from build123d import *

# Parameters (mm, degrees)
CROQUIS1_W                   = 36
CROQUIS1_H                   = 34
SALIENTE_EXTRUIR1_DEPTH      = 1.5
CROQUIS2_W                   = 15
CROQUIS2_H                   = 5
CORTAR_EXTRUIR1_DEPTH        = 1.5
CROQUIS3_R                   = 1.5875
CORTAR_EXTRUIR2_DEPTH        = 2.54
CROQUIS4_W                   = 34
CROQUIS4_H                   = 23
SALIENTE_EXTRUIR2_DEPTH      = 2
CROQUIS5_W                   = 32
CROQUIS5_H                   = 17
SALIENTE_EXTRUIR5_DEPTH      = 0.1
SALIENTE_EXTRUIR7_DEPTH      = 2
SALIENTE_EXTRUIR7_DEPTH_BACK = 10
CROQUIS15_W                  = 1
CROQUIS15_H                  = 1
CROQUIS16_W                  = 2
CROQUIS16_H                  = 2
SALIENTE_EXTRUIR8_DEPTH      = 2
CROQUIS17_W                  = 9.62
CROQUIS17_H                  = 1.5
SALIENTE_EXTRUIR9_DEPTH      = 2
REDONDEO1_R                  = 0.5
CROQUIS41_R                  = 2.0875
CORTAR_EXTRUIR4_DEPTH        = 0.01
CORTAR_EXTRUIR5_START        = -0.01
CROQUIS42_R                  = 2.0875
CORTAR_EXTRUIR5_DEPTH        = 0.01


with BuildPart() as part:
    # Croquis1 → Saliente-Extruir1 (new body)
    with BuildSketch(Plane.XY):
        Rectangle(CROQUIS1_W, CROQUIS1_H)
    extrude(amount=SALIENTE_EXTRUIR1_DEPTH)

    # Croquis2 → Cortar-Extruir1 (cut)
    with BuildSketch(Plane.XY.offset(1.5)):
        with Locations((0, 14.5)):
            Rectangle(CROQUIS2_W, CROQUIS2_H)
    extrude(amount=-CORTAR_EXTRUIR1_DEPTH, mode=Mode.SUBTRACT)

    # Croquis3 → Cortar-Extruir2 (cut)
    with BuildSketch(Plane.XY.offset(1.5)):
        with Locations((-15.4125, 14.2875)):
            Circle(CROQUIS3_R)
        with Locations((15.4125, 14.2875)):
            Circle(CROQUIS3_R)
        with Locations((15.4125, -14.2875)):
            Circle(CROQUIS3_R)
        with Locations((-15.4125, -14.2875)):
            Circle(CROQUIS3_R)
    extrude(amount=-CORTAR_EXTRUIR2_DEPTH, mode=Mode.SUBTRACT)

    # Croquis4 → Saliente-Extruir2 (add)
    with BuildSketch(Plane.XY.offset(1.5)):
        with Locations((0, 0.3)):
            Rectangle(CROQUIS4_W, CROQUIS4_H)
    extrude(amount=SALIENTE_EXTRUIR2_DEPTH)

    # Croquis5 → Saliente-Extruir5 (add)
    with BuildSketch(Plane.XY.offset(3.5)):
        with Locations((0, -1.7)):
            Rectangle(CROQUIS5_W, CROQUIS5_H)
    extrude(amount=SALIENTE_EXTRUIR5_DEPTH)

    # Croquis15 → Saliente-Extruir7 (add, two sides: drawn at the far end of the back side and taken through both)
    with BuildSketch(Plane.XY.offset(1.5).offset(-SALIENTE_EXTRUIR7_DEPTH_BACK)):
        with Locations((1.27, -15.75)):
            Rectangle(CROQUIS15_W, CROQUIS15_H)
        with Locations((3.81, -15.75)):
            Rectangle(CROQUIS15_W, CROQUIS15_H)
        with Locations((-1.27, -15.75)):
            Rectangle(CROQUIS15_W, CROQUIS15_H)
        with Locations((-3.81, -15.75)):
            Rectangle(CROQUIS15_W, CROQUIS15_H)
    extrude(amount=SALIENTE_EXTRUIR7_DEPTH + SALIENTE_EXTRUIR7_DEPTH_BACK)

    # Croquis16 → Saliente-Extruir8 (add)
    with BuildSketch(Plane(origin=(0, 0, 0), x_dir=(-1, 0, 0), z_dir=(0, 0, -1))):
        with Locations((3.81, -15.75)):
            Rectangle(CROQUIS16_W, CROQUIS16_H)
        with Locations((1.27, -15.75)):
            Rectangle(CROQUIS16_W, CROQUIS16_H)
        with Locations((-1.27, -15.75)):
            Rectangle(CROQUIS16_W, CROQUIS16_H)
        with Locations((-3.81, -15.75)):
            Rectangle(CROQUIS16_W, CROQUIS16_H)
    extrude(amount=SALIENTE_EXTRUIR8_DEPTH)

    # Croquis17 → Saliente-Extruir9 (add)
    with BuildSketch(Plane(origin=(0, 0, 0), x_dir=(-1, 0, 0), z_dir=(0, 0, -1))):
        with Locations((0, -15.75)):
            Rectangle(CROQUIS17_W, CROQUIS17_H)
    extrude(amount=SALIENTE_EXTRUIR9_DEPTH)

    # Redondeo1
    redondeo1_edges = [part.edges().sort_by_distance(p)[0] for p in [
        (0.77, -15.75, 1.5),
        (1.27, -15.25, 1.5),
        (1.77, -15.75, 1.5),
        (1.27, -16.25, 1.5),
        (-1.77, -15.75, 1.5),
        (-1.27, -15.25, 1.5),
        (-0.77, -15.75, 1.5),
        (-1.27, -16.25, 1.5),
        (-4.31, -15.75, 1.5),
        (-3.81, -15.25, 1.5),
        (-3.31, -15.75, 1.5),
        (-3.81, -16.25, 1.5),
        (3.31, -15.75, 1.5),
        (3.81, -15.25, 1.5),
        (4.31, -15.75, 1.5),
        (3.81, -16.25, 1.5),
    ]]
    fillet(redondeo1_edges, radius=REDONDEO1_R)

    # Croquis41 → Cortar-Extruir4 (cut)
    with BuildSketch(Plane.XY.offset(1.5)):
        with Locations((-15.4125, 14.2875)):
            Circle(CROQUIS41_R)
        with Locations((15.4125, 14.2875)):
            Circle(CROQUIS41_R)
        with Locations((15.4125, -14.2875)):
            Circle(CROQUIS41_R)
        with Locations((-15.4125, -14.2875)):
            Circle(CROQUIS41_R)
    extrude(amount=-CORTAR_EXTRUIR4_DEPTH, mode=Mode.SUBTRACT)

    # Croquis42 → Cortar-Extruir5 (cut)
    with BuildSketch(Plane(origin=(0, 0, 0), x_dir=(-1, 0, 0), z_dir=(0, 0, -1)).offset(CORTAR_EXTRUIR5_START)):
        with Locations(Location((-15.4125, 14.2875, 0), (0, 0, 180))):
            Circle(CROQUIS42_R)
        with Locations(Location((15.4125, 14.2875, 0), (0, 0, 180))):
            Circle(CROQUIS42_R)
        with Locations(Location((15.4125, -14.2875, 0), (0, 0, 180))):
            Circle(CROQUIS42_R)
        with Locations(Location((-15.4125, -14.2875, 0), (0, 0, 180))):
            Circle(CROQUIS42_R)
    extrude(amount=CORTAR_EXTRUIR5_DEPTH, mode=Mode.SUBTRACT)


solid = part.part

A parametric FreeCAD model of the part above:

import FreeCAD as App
import Part
import Sketcher

V = App.Vector
Q = App.Units.Quantity


def edges_at(feature, points):
    """Names of the edges that pass closest to the given points."""
    edges = feature.Shape.Edges
    near = lambda p: min(range(len(edges)), key=lambda i: edges[i].distToShape(Part.Vertex(*p))[0])
    return sorted({f"Edge{near(p) + 1}" for p in points})

doc = App.newDocument("Part")
body = doc.addObject("PartDesign::Body", "Body")

# Sketch on XY plane
sketch1 = body.newObject("Sketcher::SketchObject", "Sketch")
sketch1.AttachmentSupport = (doc.getObject("XY_Plane"), [""])
sketch1.MapMode = "FlatFace"
sketch1.addGeometry([
    Part.LineSegment(V(-18, 17, 0), V(-18, -17, 0)),
    Part.LineSegment(V(-18, -17, 0), V(18, -17, 0)),
    Part.LineSegment(V(18, -17, 0), V(18, 17, 0)),
    Part.LineSegment(V(18, 17, 0), V(-18, 17, 0)),
], False)
sketch1.addConstraint([
    Sketcher.Constraint("Coincident", 0, 2, 1, 1),
    Sketcher.Constraint("Coincident", 1, 2, 2, 1),
    Sketcher.Constraint("Coincident", 2, 2, 3, 1),
    Sketcher.Constraint("Coincident", 3, 2, 0, 1),
    Sketcher.Constraint("Vertical", 0),
    Sketcher.Constraint("Horizontal", 1),
    Sketcher.Constraint("Vertical", 2),
    Sketcher.Constraint("Horizontal", 3),
    Sketcher.Constraint("Symmetric", 0, 2, 2, 2, -1, 1),
    Sketcher.Constraint("DistanceX", 1, 1, 1, 2, Q("36 mm")),
    Sketcher.Constraint("DistanceY", 0, 2, 0, 1, Q("34 mm")),
])
pad1 = body.newObject("PartDesign::Pad", "Pad")
pad1.Profile = sketch1
pad1.Length = 1.5

# Sketch on XY plane
sketch2 = body.newObject("Sketcher::SketchObject", "Sketch001")
sketch2.AttachmentSupport = (doc.getObject("XY_Plane"), [""])
sketch2.MapMode = "FlatFace"
sketch2.AttachmentOffset = App.Placement(V(0, 0, 1.5), App.Rotation())
sketch2.addGeometry([
    Part.LineSegment(V(-7.5, 17, 0), V(-7.5, 12, 0)),
    Part.LineSegment(V(-7.5, 12, 0), V(7.5, 12, 0)),
    Part.LineSegment(V(7.5, 12, 0), V(7.5, 17, 0)),
    Part.LineSegment(V(7.5, 17, 0), V(-7.5, 17, 0)),
], False)
sketch2.addConstraint([
    Sketcher.Constraint("Coincident", 0, 2, 1, 1),
    Sketcher.Constraint("Coincident", 1, 2, 2, 1),
    Sketcher.Constraint("Coincident", 2, 2, 3, 1),
    Sketcher.Constraint("Coincident", 3, 2, 0, 1),
    Sketcher.Constraint("Vertical", 0),
    Sketcher.Constraint("Horizontal", 1),
    Sketcher.Constraint("Vertical", 2),
    Sketcher.Constraint("Horizontal", 3),
    Sketcher.Constraint("DistanceX", 1, 1, 1, 2, Q("15 mm")),
    Sketcher.Constraint("DistanceY", 0, 2, 0, 1, Q("5 mm")),
    Sketcher.Constraint("DistanceY", -1, 1, 0, 2, Q("12 mm")),
    Sketcher.Constraint("DistanceX", 0, 2, -1, 1, Q("7.5 mm")),
])
pocket1 = body.newObject("PartDesign::Pocket", "Pocket")
pocket1.Profile = sketch2
pocket1.Length = 1.5

# Sketch on XY plane
sketch3 = body.newObject("Sketcher::SketchObject", "Sketch002")
sketch3.AttachmentSupport = (doc.getObject("XY_Plane"), [""])
sketch3.MapMode = "FlatFace"
sketch3.AttachmentOffset = App.Placement(V(0, 0, 1.5), App.Rotation())
sketch3.addGeometry([
    Part.Circle(V(-15.4125, 14.2875, 0), V(0, 0, 1), 1.5875),
    Part.Circle(V(15.4125, 14.2875, 0), V(0, 0, 1), 1.5875),
    Part.Circle(V(15.4125, -14.2875, 0), V(0, 0, 1), 1.5875),
    Part.Circle(V(-15.4125, -14.2875, 0), V(0, 0, 1), 1.5875),
], False)
sketch3.addConstraint([
    Sketcher.Constraint("Equal", 0, 1),
    Sketcher.Constraint("Equal", 1, 2),
    Sketcher.Constraint("Equal", 2, 3),
    Sketcher.Constraint("Symmetric", 0, 3, 2, 3, -1, 1),
    Sketcher.Constraint("Symmetric", 1, 3, 3, 3, -1, 1),
    Sketcher.Constraint("Symmetric", 0, 3, 1, 3, -2),
    Sketcher.Constraint("Diameter", 0, Q("3.175 mm")),
    Sketcher.Constraint("DistanceX", 0, 3, 1, 3, Q("30.825 mm")),
    Sketcher.Constraint("DistanceY", 2, 3, 1, 3, Q("28.575 mm")),
])
pocket2 = body.newObject("PartDesign::Pocket", "Pocket001")
pocket2.Profile = sketch3
pocket2.Length = 2.54

# Sketch on XY plane
sketch4 = body.newObject("Sketcher::SketchObject", "Sketch003")
sketch4.AttachmentSupport = (doc.getObject("XY_Plane"), [""])
sketch4.MapMode = "FlatFace"
sketch4.AttachmentOffset = App.Placement(V(0, 0, 1.5), App.Rotation())
sketch4.addGeometry([
    Part.LineSegment(V(-17, 11.8, 0), V(-17, -11.2, 0)),
    Part.LineSegment(V(-17, -11.2, 0), V(17, -11.2, 0)),
    Part.LineSegment(V(17, -11.2, 0), V(17, 11.8, 0)),
    Part.LineSegment(V(17, 11.8, 0), V(-17, 11.8, 0)),
], False)
sketch4.addConstraint([
    Sketcher.Constraint("Coincident", 0, 2, 1, 1),
    Sketcher.Constraint("Coincident", 1, 2, 2, 1),
    Sketcher.Constraint("Coincident", 2, 2, 3, 1),
    Sketcher.Constraint("Coincident", 3, 2, 0, 1),
    Sketcher.Constraint("Vertical", 0),
    Sketcher.Constraint("Horizontal", 1),
    Sketcher.Constraint("Vertical", 2),
    Sketcher.Constraint("Horizontal", 3),
    Sketcher.Constraint("DistanceX", 1, 1, 1, 2, Q("34 mm")),
    Sketcher.Constraint("DistanceY", 0, 2, 0, 1, Q("23 mm")),
    Sketcher.Constraint("DistanceX", 0, 2, -1, 1, Q("17 mm")),
    Sketcher.Constraint("DistanceY", 0, 2, -1, 1, Q("11.2 mm")),
])
pad2 = body.newObject("PartDesign::Pad", "Pad001")
pad2.Profile = sketch4
pad2.Length = 2

# Sketch on XY plane
sketch5 = body.newObject("Sketcher::SketchObject", "Sketch004")
sketch5.AttachmentSupport = (doc.getObject("XY_Plane"), [""])
sketch5.MapMode = "FlatFace"
sketch5.AttachmentOffset = App.Placement(V(0, 0, 3.5), App.Rotation())
sketch5.addGeometry([
    Part.LineSegment(V(-16, 6.8, 0), V(-16, -10.2, 0)),
    Part.LineSegment(V(-16, -10.2, 0), V(16, -10.2, 0)),
    Part.LineSegment(V(16, -10.2, 0), V(16, 6.8, 0)),
    Part.LineSegment(V(16, 6.8, 0), V(-16, 6.8, 0)),
], False)
sketch5.addConstraint([
    Sketcher.Constraint("Coincident", 0, 2, 1, 1),
    Sketcher.Constraint("Coincident", 1, 2, 2, 1),
    Sketcher.Constraint("Coincident", 2, 2, 3, 1),
    Sketcher.Constraint("Coincident", 3, 2, 0, 1),
    Sketcher.Constraint("Vertical", 0),
    Sketcher.Constraint("Horizontal", 1),
    Sketcher.Constraint("Vertical", 2),
    Sketcher.Constraint("Horizontal", 3),
    Sketcher.Constraint("DistanceX", 1, 1, 1, 2, Q("32 mm")),
    Sketcher.Constraint("DistanceY", 0, 2, 0, 1, Q("17 mm")),
    Sketcher.Constraint("DistanceX", 0, 2, -1, 1, Q("16 mm")),
    Sketcher.Constraint("DistanceY", 0, 2, -1, 1, Q("10.2 mm")),
])
pad3 = body.newObject("PartDesign::Pad", "Pad002")
pad3.Profile = sketch5
pad3.Length = 0.1

# Sketch on XY plane
sketch6 = body.newObject("Sketcher::SketchObject", "Sketch005")
sketch6.AttachmentSupport = (doc.getObject("XY_Plane"), [""])
sketch6.MapMode = "FlatFace"
sketch6.AttachmentOffset = App.Placement(V(0, 0, 1.5), App.Rotation())
sketch6.addGeometry([
    Part.LineSegment(V(0.77, -15.25, 0), V(0.77, -16.25, 0)),  # 0
    Part.LineSegment(V(0.77, -16.25, 0), V(1.77, -16.25, 0)),  # 1
    Part.LineSegment(V(1.77, -16.25, 0), V(1.77, -15.25, 0)),  # 2
    Part.LineSegment(V(1.77, -15.25, 0), V(0.77, -15.25, 0)),  # 3
    Part.LineSegment(V(3.31, -15.25, 0), V(3.31, -16.25, 0)),  # 4
    Part.LineSegment(V(3.31, -16.25, 0), V(4.31, -16.25, 0)),  # 5
    Part.LineSegment(V(4.31, -16.25, 0), V(4.31, -15.25, 0)),  # 6
    Part.LineSegment(V(4.31, -15.25, 0), V(3.31, -15.25, 0)),  # 7
    Part.LineSegment(V(-1.77, -15.25, 0), V(-1.77, -16.25, 0)),  # 8
    Part.LineSegment(V(-1.77, -16.25, 0), V(-0.77, -16.25, 0)),  # 9
    Part.LineSegment(V(-0.77, -16.25, 0), V(-0.77, -15.25, 0)),  # 10
    Part.LineSegment(V(-0.77, -15.25, 0), V(-1.77, -15.25, 0)),  # 11
    Part.LineSegment(V(-4.31, -15.25, 0), V(-4.31, -16.25, 0)),  # 12
    Part.LineSegment(V(-4.31, -16.25, 0), V(-3.31, -16.25, 0)),  # 13
    Part.LineSegment(V(-3.31, -16.25, 0), V(-3.31, -15.25, 0)),  # 14
    Part.LineSegment(V(-3.31, -15.25, 0), V(-4.31, -15.25, 0)),  # 15
], False)
sketch6.addConstraint([
    Sketcher.Constraint("Coincident", 0, 2, 1, 1),
    Sketcher.Constraint("Coincident", 1, 2, 2, 1),
    Sketcher.Constraint("Coincident", 2, 2, 3, 1),
    Sketcher.Constraint("Coincident", 3, 2, 0, 1),
    Sketcher.Constraint("Coincident", 4, 2, 5, 1),
    Sketcher.Constraint("Coincident", 5, 2, 6, 1),
    Sketcher.Constraint("Coincident", 6, 2, 7, 1),
    Sketcher.Constraint("Coincident", 7, 2, 4, 1),
    Sketcher.Constraint("Coincident", 8, 2, 9, 1),
    Sketcher.Constraint("Coincident", 9, 2, 10, 1),
    Sketcher.Constraint("Coincident", 10, 2, 11, 1),
    Sketcher.Constraint("Coincident", 11, 2, 8, 1),
    Sketcher.Constraint("Coincident", 12, 2, 13, 1),
    Sketcher.Constraint("Coincident", 13, 2, 14, 1),
    Sketcher.Constraint("Coincident", 14, 2, 15, 1),
    Sketcher.Constraint("Coincident", 15, 2, 12, 1),
    Sketcher.Constraint("Vertical", 0),
    Sketcher.Constraint("Horizontal", 1),
    Sketcher.Constraint("Vertical", 2),
    Sketcher.Constraint("Horizontal", 3),
    Sketcher.Constraint("Vertical", 4),
    Sketcher.Constraint("Horizontal", 5),
    Sketcher.Constraint("Vertical", 6),
    Sketcher.Constraint("Horizontal", 7),
    Sketcher.Constraint("Vertical", 8),
    Sketcher.Constraint("Horizontal", 9),
    Sketcher.Constraint("Vertical", 10),
    Sketcher.Constraint("Horizontal", 11),
    Sketcher.Constraint("Vertical", 12),
    Sketcher.Constraint("Horizontal", 13),
    Sketcher.Constraint("Vertical", 14),
    Sketcher.Constraint("Horizontal", 15),
    Sketcher.Constraint("Symmetric", 1, 2, 8, 2, -2),
    Sketcher.Constraint("Symmetric", 3, 2, 10, 2, -2),
    Sketcher.Constraint("Symmetric", 5, 2, 12, 2, -2),
    Sketcher.Constraint("Symmetric", 7, 2, 14, 2, -2),
    Sketcher.Constraint("Horizontal", 1, 2, 4, 2),
    Sketcher.Constraint("Horizontal", 3, 2, 6, 2),
    Sketcher.Constraint("Equal", 3, 5),
    Sketcher.Constraint("Equal", 15, 0),
    Sketcher.Constraint("DistanceX", 1, 1, 1, 2, Q("1 mm")),
    Sketcher.Constraint("DistanceX", -1, 1, 0, 2, Q("0.77 mm")),
    Sketcher.Constraint("DistanceY", 0, 2, -1, 1, Q("16.25 mm")),
    Sketcher.Constraint("DistanceX", -1, 1, 4, 2, Q("3.31 mm")),
])
pad4 = body.newObject("PartDesign::Pad", "Pad003")
pad4.Profile = sketch6
pad4.Type = "TwoLengths"
pad4.Length = 2
pad4.Length2 = 10

# Sketch on XY plane
sketch7 = body.newObject("Sketcher::SketchObject", "Sketch006")
sketch7.AttachmentSupport = (doc.getObject("XY_Plane"), [""])
sketch7.MapMode = "FlatFace"
sketch7.addGeometry([
    Part.LineSegment(V(-2.81, -14.75, 0), V(-2.81, -16.75, 0)),  # 0
    Part.LineSegment(V(-2.81, -16.75, 0), V(-4.81, -16.75, 0)),  # 1
    Part.LineSegment(V(-4.81, -16.75, 0), V(-4.81, -14.75, 0)),  # 2
    Part.LineSegment(V(-4.81, -14.75, 0), V(-2.81, -14.75, 0)),  # 3
    Part.LineSegment(V(-0.27, -14.75, 0), V(-0.27, -16.75, 0)),  # 4
    Part.LineSegment(V(-0.27, -16.75, 0), V(-2.27, -16.75, 0)),  # 5
    Part.LineSegment(V(-2.27, -16.75, 0), V(-2.27, -14.75, 0)),  # 6
    Part.LineSegment(V(-2.27, -14.75, 0), V(-0.27, -14.75, 0)),  # 7
    Part.LineSegment(V(2.27, -14.75, 0), V(2.27, -16.75, 0)),  # 8
    Part.LineSegment(V(2.27, -16.75, 0), V(0.27, -16.75, 0)),  # 9
    Part.LineSegment(V(0.27, -16.75, 0), V(0.27, -14.75, 0)),  # 10
    Part.LineSegment(V(0.27, -14.75, 0), V(2.27, -14.75, 0)),  # 11
    Part.LineSegment(V(4.81, -14.75, 0), V(4.81, -16.75, 0)),  # 12
    Part.LineSegment(V(4.81, -16.75, 0), V(2.81, -16.75, 0)),  # 13
    Part.LineSegment(V(2.81, -16.75, 0), V(2.81, -14.75, 0)),  # 14
    Part.LineSegment(V(2.81, -14.75, 0), V(4.81, -14.75, 0)),  # 15
], False)
sketch7.addConstraint([
    Sketcher.Constraint("Coincident", 0, 2, 1, 1),
    Sketcher.Constraint("Coincident", 1, 2, 2, 1),
    Sketcher.Constraint("Coincident", 2, 2, 3, 1),
    Sketcher.Constraint("Coincident", 3, 2, 0, 1),
    Sketcher.Constraint("Coincident", 4, 2, 5, 1),
    Sketcher.Constraint("Coincident", 5, 2, 6, 1),
    Sketcher.Constraint("Coincident", 6, 2, 7, 1),
    Sketcher.Constraint("Coincident", 7, 2, 4, 1),
    Sketcher.Constraint("Coincident", 8, 2, 9, 1),
    Sketcher.Constraint("Coincident", 9, 2, 10, 1),
    Sketcher.Constraint("Coincident", 10, 2, 11, 1),
    Sketcher.Constraint("Coincident", 11, 2, 8, 1),
    Sketcher.Constraint("Coincident", 12, 2, 13, 1),
    Sketcher.Constraint("Coincident", 13, 2, 14, 1),
    Sketcher.Constraint("Coincident", 14, 2, 15, 1),
    Sketcher.Constraint("Coincident", 15, 2, 12, 1),
    Sketcher.Constraint("Vertical", 0),
    Sketcher.Constraint("Horizontal", 1),
    Sketcher.Constraint("Vertical", 2),
    Sketcher.Constraint("Horizontal", 3),
    Sketcher.Constraint("Vertical", 4),
    Sketcher.Constraint("Horizontal", 5),
    Sketcher.Constraint("Vertical", 6),
    Sketcher.Constraint("Horizontal", 7),
    Sketcher.Constraint("Vertical", 8),
    Sketcher.Constraint("Horizontal", 9),
    Sketcher.Constraint("Vertical", 10),
    Sketcher.Constraint("Horizontal", 11),
    Sketcher.Constraint("Vertical", 12),
    Sketcher.Constraint("Horizontal", 13),
    Sketcher.Constraint("Vertical", 14),
    Sketcher.Constraint("Horizontal", 15),
    Sketcher.Constraint("Symmetric", 5, 2, 8, 2, -2),
    Sketcher.Constraint("Symmetric", 7, 2, 10, 2, -2),
    Sketcher.Constraint("Symmetric", 1, 2, 12, 2, -2),
    Sketcher.Constraint("Symmetric", 3, 2, 14, 2, -2),
    Sketcher.Constraint("Horizontal", 1, 2, 4, 2),
    Sketcher.Constraint("Horizontal", 3, 2, 6, 2),
    Sketcher.Constraint("Equal", 3, 5),
    Sketcher.Constraint("Equal", 15, 0),
    Sketcher.Constraint("DistanceX", 1, 2, 1, 1, Q("2 mm")),
    Sketcher.Constraint("DistanceX", 0, 2, -1, 1, Q("2.81 mm")),
    Sketcher.Constraint("DistanceY", 0, 2, -1, 1, Q("16.75 mm")),
    Sketcher.Constraint("DistanceX", 4, 2, -1, 1, Q("0.27 mm")),
])
pad5 = body.newObject("PartDesign::Pad", "Pad004")
pad5.Profile = sketch7
pad5.Length = 2
pad5.Reversed = True

# Sketch on XY plane
sketch8 = body.newObject("Sketcher::SketchObject", "Sketch007")
sketch8.AttachmentSupport = (doc.getObject("XY_Plane"), [""])
sketch8.MapMode = "FlatFace"
sketch8.addGeometry([
    Part.LineSegment(V(4.81, -15, 0), V(4.81, -16.5, 0)),
    Part.LineSegment(V(4.81, -16.5, 0), V(-4.81, -16.5, 0)),
    Part.LineSegment(V(-4.81, -16.5, 0), V(-4.81, -15, 0)),
    Part.LineSegment(V(-4.81, -15, 0), V(4.81, -15, 0)),
], False)
sketch8.addConstraint([
    Sketcher.Constraint("Coincident", 0, 2, 1, 1),
    Sketcher.Constraint("Coincident", 1, 2, 2, 1),
    Sketcher.Constraint("Coincident", 2, 2, 3, 1),
    Sketcher.Constraint("Coincident", 3, 2, 0, 1),
    Sketcher.Constraint("Vertical", 0),
    Sketcher.Constraint("Horizontal", 1),
    Sketcher.Constraint("Vertical", 2),
    Sketcher.Constraint("Horizontal", 3),
    Sketcher.Constraint("DistanceY", 0, 2, 0, 1, Q("1.5 mm")),
    Sketcher.Constraint("DistanceY", 2, 2, -1, 1, Q("15 mm")),
    Sketcher.Constraint("DistanceX", 1, 2, 1, 1, Q("9.62 mm")),
    Sketcher.Constraint("DistanceX", -1, 1, 0, 2, Q("4.81 mm")),
])
pad6 = body.newObject("PartDesign::Pad", "Pad005")
pad6.Profile = sketch8
pad6.Length = 2
pad6.Reversed = True
doc.recompute()

fillet = body.newObject("PartDesign::Fillet", "Fillet")
fillet.Base = (pad6, edges_at(pad6, [
    (0.77, -15.75, 1.5),
    (1.27, -15.25, 1.5),
    (1.77, -15.75, 1.5),
    (1.27, -16.25, 1.5),
    (-1.77, -15.75, 1.5),
    (-1.27, -15.25, 1.5),
    (-0.77, -15.75, 1.5),
    (-1.27, -16.25, 1.5),
    (-4.31, -15.75, 1.5),
    (-3.81, -15.25, 1.5),
    (-3.31, -15.75, 1.5),
    (-3.81, -16.25, 1.5),
    (3.31, -15.75, 1.5),
    (3.81, -15.25, 1.5),
    (4.31, -15.75, 1.5),
    (3.81, -16.25, 1.5),
]))
fillet.Radius = 0.5

# Sketch on XY plane
sketch9 = body.newObject("Sketcher::SketchObject", "Sketch008")
sketch9.AttachmentSupport = (doc.getObject("XY_Plane"), [""])
sketch9.MapMode = "FlatFace"
sketch9.AttachmentOffset = App.Placement(V(0, 0, 1.5), App.Rotation())
sketch9.addGeometry([
    Part.Circle(V(-15.4125, 14.2875, 0), V(0, 0, 1), 2.0875),
    Part.Circle(V(15.4125, 14.2875, 0), V(0, 0, 1), 2.0875),
    Part.Circle(V(15.4125, -14.2875, 0), V(0, 0, 1), 2.0875),
    Part.Circle(V(-15.4125, -14.2875, 0), V(0, 0, 1), 2.0875),
], False)
sketch9.addConstraint([
    Sketcher.Constraint("Equal", 0, 1),
    Sketcher.Constraint("Equal", 1, 2),
    Sketcher.Constraint("Equal", 2, 3),
    Sketcher.Constraint("Symmetric", 0, 3, 2, 3, -1, 1),
    Sketcher.Constraint("Symmetric", 1, 3, 3, 3, -1, 1),
    Sketcher.Constraint("Symmetric", 0, 3, 1, 3, -2),
    Sketcher.Constraint("Diameter", 0, Q("4.175 mm")),
    Sketcher.Constraint("DistanceX", 0, 3, 1, 3, Q("30.825 mm")),
    Sketcher.Constraint("DistanceY", 2, 3, 1, 3, Q("28.575 mm")),
])
pocket3 = body.newObject("PartDesign::Pocket", "Pocket002")
pocket3.Profile = sketch9
pocket3.Length = 0.01

# Sketch on XY plane
sketch10 = body.newObject("Sketcher::SketchObject", "Sketch009")
sketch10.AttachmentSupport = (doc.getObject("XY_Plane"), [""])
sketch10.MapMode = "FlatFace"
sketch10.AttachmentOffset = App.Placement(V(0, 0, 0.01), App.Rotation())
sketch10.addGeometry([
    Part.Circle(V(15.4125, 14.2875, 0), V(0, 0, 1), 2.0875),
    Part.Circle(V(-15.4125, 14.2875, 0), V(0, 0, 1), 2.0875),
    Part.Circle(V(-15.4125, -14.2875, 0), V(0, 0, 1), 2.0875),
    Part.Circle(V(15.4125, -14.2875, 0), V(0, 0, 1), 2.0875),
], False)
sketch10.addConstraint([
    Sketcher.Constraint("Equal", 0, 1),
    Sketcher.Constraint("Equal", 1, 2),
    Sketcher.Constraint("Equal", 2, 3),
    Sketcher.Constraint("Symmetric", 0, 3, 2, 3, -1, 1),
    Sketcher.Constraint("Symmetric", 1, 3, 3, 3, -1, 1),
    Sketcher.Constraint("Symmetric", 0, 3, 1, 3, -2),
    Sketcher.Constraint("Diameter", 0, Q("4.175 mm")),
    Sketcher.Constraint("DistanceX", 1, 3, 0, 3, Q("30.825 mm")),
    Sketcher.Constraint("DistanceY", 2, 3, 1, 3, Q("28.575 mm")),
])
pocket4 = body.newObject("PartDesign::Pocket", "Pocket003")
pocket4.Profile = sketch10
pocket4.Length = 0.01

doc.recompute()
